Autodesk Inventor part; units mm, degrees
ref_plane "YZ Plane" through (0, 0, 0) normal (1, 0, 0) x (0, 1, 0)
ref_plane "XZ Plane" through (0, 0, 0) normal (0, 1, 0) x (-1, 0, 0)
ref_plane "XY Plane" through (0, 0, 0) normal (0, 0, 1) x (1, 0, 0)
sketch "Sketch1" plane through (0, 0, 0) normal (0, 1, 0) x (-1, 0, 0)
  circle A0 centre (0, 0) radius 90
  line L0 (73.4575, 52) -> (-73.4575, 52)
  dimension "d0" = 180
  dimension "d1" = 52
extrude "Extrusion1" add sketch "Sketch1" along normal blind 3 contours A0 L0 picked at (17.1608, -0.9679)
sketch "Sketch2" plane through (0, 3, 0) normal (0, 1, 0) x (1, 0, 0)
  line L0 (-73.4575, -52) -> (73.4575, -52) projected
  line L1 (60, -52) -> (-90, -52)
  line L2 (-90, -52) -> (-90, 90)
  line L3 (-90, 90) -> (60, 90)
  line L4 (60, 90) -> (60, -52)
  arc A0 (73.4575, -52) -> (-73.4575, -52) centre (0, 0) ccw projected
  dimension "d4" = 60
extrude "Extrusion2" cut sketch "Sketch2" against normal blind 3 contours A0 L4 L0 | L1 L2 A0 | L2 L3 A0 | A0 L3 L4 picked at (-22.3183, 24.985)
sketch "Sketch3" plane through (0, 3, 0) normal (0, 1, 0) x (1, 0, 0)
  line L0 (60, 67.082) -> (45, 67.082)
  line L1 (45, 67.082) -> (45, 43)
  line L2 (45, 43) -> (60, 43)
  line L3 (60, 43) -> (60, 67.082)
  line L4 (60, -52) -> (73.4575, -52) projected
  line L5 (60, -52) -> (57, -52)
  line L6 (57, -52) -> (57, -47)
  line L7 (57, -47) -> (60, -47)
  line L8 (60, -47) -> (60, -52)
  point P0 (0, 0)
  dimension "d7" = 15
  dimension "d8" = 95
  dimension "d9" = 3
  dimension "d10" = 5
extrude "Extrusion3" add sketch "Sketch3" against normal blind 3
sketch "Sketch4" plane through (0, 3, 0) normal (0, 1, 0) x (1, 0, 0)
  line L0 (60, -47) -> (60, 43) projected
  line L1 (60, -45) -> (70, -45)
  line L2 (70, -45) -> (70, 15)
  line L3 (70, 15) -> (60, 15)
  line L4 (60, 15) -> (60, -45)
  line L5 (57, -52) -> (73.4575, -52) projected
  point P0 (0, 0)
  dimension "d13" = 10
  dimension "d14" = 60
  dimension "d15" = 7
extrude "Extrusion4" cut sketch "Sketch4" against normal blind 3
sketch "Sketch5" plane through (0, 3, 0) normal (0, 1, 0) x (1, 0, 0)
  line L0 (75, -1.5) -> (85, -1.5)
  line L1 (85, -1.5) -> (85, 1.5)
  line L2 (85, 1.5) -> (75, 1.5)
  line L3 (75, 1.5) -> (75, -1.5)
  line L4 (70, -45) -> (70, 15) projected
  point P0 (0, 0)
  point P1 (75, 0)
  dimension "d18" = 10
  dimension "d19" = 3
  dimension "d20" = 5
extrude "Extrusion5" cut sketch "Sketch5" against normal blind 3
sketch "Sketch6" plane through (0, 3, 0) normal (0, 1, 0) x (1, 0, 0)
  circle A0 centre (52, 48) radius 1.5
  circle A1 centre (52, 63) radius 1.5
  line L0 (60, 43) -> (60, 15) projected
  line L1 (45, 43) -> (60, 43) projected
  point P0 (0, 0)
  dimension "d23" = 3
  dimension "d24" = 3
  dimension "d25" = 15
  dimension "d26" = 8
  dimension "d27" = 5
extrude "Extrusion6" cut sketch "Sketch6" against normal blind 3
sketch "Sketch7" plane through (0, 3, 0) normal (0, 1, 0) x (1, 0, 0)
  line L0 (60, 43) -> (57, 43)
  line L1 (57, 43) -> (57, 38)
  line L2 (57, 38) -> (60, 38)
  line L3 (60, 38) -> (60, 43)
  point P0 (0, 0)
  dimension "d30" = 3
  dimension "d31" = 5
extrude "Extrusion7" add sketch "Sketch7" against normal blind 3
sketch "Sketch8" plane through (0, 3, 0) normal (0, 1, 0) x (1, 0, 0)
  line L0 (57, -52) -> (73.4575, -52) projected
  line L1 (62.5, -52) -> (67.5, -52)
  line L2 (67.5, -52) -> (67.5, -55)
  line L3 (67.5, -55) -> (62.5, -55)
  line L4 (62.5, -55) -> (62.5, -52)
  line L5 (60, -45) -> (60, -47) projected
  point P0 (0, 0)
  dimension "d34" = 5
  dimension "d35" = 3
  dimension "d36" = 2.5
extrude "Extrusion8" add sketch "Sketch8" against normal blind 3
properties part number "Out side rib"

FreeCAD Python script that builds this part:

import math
import FreeCAD as App
import Part
import Sketcher
from FreeCAD import Vector
Q = App.Units.Quantity


def add_polygon(sketch, points):
    """Adds a closed chain of lines whose ends are joined by coincident constraints."""
    first, n = sketch.GeometryCount, len(points)
    for a, b in zip(points, points[1:] + points[:1]):
        sketch.addGeometry(Part.LineSegment(App.Vector(*a, 0), App.Vector(*b, 0)), False)
    for i in range(n):
        sketch.addConstraint(Sketcher.Constraint("Coincident", first + i, 2, first + (i + 1) % n, 1))

doc = App.newDocument("Part")
body = doc.addObject("PartDesign::Body", "Body")

sketch1 = doc.addObject("Sketcher::SketchObject", "Sketch")
body.addObject(sketch1)
sketch1.AttachmentSupport = (doc.XZ_Plane, [""])
sketch1.MapMode = "FlatFace"
sketch1.addGeometry([
    Part.ArcOfCircle(Part.Circle(Vector(0, 0, 0), Vector(0, 0, 1), 90), math.radians(144.705616), math.radians(395.294384)),
    Part.LineSegment(Vector(73.4575, 52, 0), Vector(-73.4575, 52, 0)),
], False)
sketch1.addConstraint([
    Sketcher.Constraint("Coincident", 0, 1, 1, 2),
    Sketcher.Constraint("Coincident", 1, 1, 0, 2),
    Sketcher.Constraint("Horizontal", 1),
    Sketcher.Constraint("Coincident", 0, 3, -1, 1),
    Sketcher.Constraint("Radius", 0, Q("90 mm")),
    Sketcher.Constraint("DistanceY", -1, 1, 0, 1, Q("52 mm")),
])
pad1 = doc.addObject("PartDesign::Pad", "Pad")
body.addObject(pad1)
pad1.Profile = sketch1
pad1.Length = 3
pad1.Reversed = True

sketch2 = doc.addObject("Sketcher::SketchObject", "Sketch001")
body.addObject(sketch2)
sketch2.AttachmentSupport = (doc.XZ_Plane, [""])
sketch2.MapMode = "FlatFace"
sketch2.AttachmentOffset = App.Placement(Vector(0, 0, -3), App.Rotation())
add_polygon(sketch2, [(60, 52), (60, -90), (-90, -90), (-90, 52)])
sketch2.addConstraint([
    Sketcher.Constraint("Vertical", 0),
    Sketcher.Constraint("Horizontal", 1),
    Sketcher.Constraint("Vertical", 2),
    Sketcher.Constraint("Horizontal", 3),
    Sketcher.Constraint("DistanceX", -1, 1, 0, 2, Q("60 mm")),
    Sketcher.Constraint("DistanceX", 1, 2, 1, 1, Q("150 mm")),
    Sketcher.Constraint("DistanceY", 0, 2, 0, 1, Q("142 mm")),
    Sketcher.Constraint("DistanceY", 0, 2, -1, 1, Q("90 mm")),
])
pocket1 = doc.addObject("PartDesign::Pocket", "Pocket")
body.addObject(pocket1)
pocket1.Profile = sketch2
pocket1.Length = 3
pocket1.Reversed = True

sketch3 = doc.addObject("Sketcher::SketchObject", "Sketch002")
body.addObject(sketch3)
sketch3.AttachmentSupport = (doc.XZ_Plane, [""])
sketch3.MapMode = "FlatFace"
sketch3.AttachmentOffset = App.Placement(Vector(0, 0, -3), App.Rotation())
add_polygon(sketch3, [(60, -43), (60, -67.082), (45, -67.082), (45, -43)])
add_polygon(sketch3, [(57, 52), (60, 52), (60, 47), (57, 47)])
sketch3.addConstraint([
    Sketcher.Constraint("Vertical", 0),
    Sketcher.Constraint("Horizontal", 1),
    Sketcher.Constraint("Vertical", 2),
    Sketcher.Constraint("Horizontal", 3),
    Sketcher.Constraint("Horizontal", 4),
    Sketcher.Constraint("Vertical", 5),
    Sketcher.Constraint("Horizontal", 6),
    Sketcher.Constraint("Vertical", 7),
    Sketcher.Constraint("Vertical", 3, 2, 4, 2),
    Sketcher.Constraint("DistanceX", 1, 2, 1, 1, Q("15 mm")),
    Sketcher.Constraint("DistanceX", 4, 1, 4, 2, Q("3 mm")),
    Sketcher.Constraint("DistanceY", 5, 2, 5, 1, Q("5 mm")),
    Sketcher.Constraint("DistanceY", 3, 2, 4, 2, Q("95 mm")),
    Sketcher.Constraint("DistanceX", -1, 1, 0, 2, Q("60 mm")),
    Sketcher.Constraint("DistanceY", 2, 2, -1, 1, Q("43 mm")),
    Sketcher.Constraint("DistanceY", 0, 2, 0, 1, Q("24.082 mm")),
])
pad2 = doc.addObject("PartDesign::Pad", "Pad001")
body.addObject(pad2)
pad2.Profile = sketch3
pad2.Length = 3

sketch4 = doc.addObject("Sketcher::SketchObject", "Sketch003")
body.addObject(sketch4)
sketch4.AttachmentSupport = (doc.XZ_Plane, [""])
sketch4.MapMode = "FlatFace"
sketch4.AttachmentOffset = App.Placement(Vector(0, 0, -3), App.Rotation())
add_polygon(sketch4, [(60, -15), (60, 45), (70, 45), (70, -15)])
sketch4.addConstraint([
    Sketcher.Constraint("Vertical", 0),
    Sketcher.Constraint("Horizontal", 1),
    Sketcher.Constraint("Vertical", 2),
    Sketcher.Constraint("Horizontal", 3),
    Sketcher.Constraint("DistanceX", 1, 1, 1, 2, Q("10 mm")),
    Sketcher.Constraint("DistanceY", 0, 1, 0, 2, Q("60 mm")),
    Sketcher.Constraint("DistanceX", -1, 1, 0, 2, Q("60 mm")),
    Sketcher.Constraint("DistanceY", -1, 1, 0, 2, Q("45 mm")),
])
pocket2 = doc.addObject("PartDesign::Pocket", "Pocket001")
body.addObject(pocket2)
pocket2.Profile = sketch4
pocket2.Length = 3
pocket2.Reversed = True

sketch5 = doc.addObject("Sketcher::SketchObject", "Sketch004")
body.addObject(sketch5)
sketch5.AttachmentSupport = (doc.XZ_Plane, [""])
sketch5.MapMode = "FlatFace"
sketch5.AttachmentOffset = App.Placement(Vector(0, 0, -3), App.Rotation())
add_polygon(sketch5, [(75, -1.5), (75, 1.5), (85, 1.5), (85, -1.5)])
sketch5.addConstraint([
    Sketcher.Constraint("Vertical", 0),
    Sketcher.Constraint("Horizontal", 1),
    Sketcher.Constraint("Vertical", 2),
    Sketcher.Constraint("Horizontal", 3),
    Sketcher.Constraint("DistanceX", 1, 1, 1, 2, Q("10 mm")),
    Sketcher.Constraint("DistanceY", 0, 1, 0, 2, Q("3 mm")),
    Sketcher.Constraint("DistanceX", -1, 1, 0, 2, Q("75 mm")),
    Sketcher.Constraint("DistanceY", -1, 1, 0, 2, Q("1.5 mm")),
])
pocket3 = doc.addObject("PartDesign::Pocket", "Pocket002")
body.addObject(pocket3)
pocket3.Profile = sketch5
pocket3.Length = 3
pocket3.Reversed = True

sketch6 = doc.addObject("Sketcher::SketchObject", "Sketch005")
body.addObject(sketch6)
sketch6.AttachmentSupport = (doc.XZ_Plane, [""])
sketch6.MapMode = "FlatFace"
sketch6.AttachmentOffset = App.Placement(Vector(0, 0, -3), App.Rotation())
sketch6.addGeometry([
    Part.Circle(Vector(52, -48, 0), Vector(0, 0, 1), 1.5),
    Part.Circle(Vector(52, -63, 0), Vector(0, 0, 1), 1.5),
], False)
sketch6.addConstraint([
    Sketcher.Constraint("Equal", 0, 1),
    Sketcher.Constraint("Vertical", 0, 3, 1, 3),
    Sketcher.Constraint("Diameter", 0, Q("3 mm")),
    Sketcher.Constraint("DistanceY", 1, 3, 0, 3, Q("15 mm")),
    Sketcher.Constraint("DistanceX", -1, 1, 0, 3, Q("52 mm")),
    Sketcher.Constraint("DistanceY", 0, 3, -1, 1, Q("48 mm")),
])
pocket4 = doc.addObject("PartDesign::Pocket", "Pocket003")
body.addObject(pocket4)
pocket4.Profile = sketch6
pocket4.Length = 3
pocket4.Reversed = True

sketch7 = doc.addObject("Sketcher::SketchObject", "Sketch006")
body.addObject(sketch7)
sketch7.AttachmentSupport = (doc.XZ_Plane, [""])
sketch7.MapMode = "FlatFace"
sketch7.AttachmentOffset = App.Placement(Vector(0, 0, -3), App.Rotation())
add_polygon(sketch7, [(60, -38), (60, -43), (57, -43), (57, -38)])
sketch7.addConstraint([
    Sketcher.Constraint("Vertical", 0),
    Sketcher.Constraint("Horizontal", 1),
    Sketcher.Constraint("Vertical", 2),
    Sketcher.Constraint("Horizontal", 3),
    Sketcher.Constraint("DistanceX", 1, 2, 1, 1, Q("3 mm")),
    Sketcher.Constraint("DistanceY", 0, 2, 0, 1, Q("5 mm")),
    Sketcher.Constraint("DistanceX", -1, 1, 0, 2, Q("60 mm")),
    Sketcher.Constraint("DistanceY", 0, 2, -1, 1, Q("43 mm")),
])
pad3 = doc.addObject("PartDesign::Pad", "Pad002")
body.addObject(pad3)
pad3.Profile = sketch7
pad3.Length = 3

sketch8 = doc.addObject("Sketcher::SketchObject", "Sketch007")
body.addObject(sketch8)
sketch8.AttachmentSupport = (doc.XZ_Plane, [""])
sketch8.MapMode = "FlatFace"
sketch8.AttachmentOffset = App.Placement(Vector(0, 0, -3), App.Rotation())
add_polygon(sketch8, [(67.5, 52), (62.5, 52), (62.5, 55), (67.5, 55)])
sketch8.addConstraint([
    Sketcher.Constraint("Horizontal", 0),
    Sketcher.Constraint("Vertical", 1),
    Sketcher.Constraint("Horizontal", 2),
    Sketcher.Constraint("Vertical", 3),
    Sketcher.Constraint("DistanceX", 0, 2, 0, 1, Q("5 mm")),
    Sketcher.Constraint("DistanceY", 1, 1, 1, 2, Q("3 mm")),
    Sketcher.Constraint("DistanceY", -1, 1, 0, 2, Q("52 mm")),
    Sketcher.Constraint("DistanceX", -1, 1, 0, 2, Q("62.5 mm")),
])
pad4 = doc.addObject("PartDesign::Pad", "Pad003")
body.addObject(pad4)
pad4.Profile = sketch8
pad4.Length = 3

doc.recompute()
